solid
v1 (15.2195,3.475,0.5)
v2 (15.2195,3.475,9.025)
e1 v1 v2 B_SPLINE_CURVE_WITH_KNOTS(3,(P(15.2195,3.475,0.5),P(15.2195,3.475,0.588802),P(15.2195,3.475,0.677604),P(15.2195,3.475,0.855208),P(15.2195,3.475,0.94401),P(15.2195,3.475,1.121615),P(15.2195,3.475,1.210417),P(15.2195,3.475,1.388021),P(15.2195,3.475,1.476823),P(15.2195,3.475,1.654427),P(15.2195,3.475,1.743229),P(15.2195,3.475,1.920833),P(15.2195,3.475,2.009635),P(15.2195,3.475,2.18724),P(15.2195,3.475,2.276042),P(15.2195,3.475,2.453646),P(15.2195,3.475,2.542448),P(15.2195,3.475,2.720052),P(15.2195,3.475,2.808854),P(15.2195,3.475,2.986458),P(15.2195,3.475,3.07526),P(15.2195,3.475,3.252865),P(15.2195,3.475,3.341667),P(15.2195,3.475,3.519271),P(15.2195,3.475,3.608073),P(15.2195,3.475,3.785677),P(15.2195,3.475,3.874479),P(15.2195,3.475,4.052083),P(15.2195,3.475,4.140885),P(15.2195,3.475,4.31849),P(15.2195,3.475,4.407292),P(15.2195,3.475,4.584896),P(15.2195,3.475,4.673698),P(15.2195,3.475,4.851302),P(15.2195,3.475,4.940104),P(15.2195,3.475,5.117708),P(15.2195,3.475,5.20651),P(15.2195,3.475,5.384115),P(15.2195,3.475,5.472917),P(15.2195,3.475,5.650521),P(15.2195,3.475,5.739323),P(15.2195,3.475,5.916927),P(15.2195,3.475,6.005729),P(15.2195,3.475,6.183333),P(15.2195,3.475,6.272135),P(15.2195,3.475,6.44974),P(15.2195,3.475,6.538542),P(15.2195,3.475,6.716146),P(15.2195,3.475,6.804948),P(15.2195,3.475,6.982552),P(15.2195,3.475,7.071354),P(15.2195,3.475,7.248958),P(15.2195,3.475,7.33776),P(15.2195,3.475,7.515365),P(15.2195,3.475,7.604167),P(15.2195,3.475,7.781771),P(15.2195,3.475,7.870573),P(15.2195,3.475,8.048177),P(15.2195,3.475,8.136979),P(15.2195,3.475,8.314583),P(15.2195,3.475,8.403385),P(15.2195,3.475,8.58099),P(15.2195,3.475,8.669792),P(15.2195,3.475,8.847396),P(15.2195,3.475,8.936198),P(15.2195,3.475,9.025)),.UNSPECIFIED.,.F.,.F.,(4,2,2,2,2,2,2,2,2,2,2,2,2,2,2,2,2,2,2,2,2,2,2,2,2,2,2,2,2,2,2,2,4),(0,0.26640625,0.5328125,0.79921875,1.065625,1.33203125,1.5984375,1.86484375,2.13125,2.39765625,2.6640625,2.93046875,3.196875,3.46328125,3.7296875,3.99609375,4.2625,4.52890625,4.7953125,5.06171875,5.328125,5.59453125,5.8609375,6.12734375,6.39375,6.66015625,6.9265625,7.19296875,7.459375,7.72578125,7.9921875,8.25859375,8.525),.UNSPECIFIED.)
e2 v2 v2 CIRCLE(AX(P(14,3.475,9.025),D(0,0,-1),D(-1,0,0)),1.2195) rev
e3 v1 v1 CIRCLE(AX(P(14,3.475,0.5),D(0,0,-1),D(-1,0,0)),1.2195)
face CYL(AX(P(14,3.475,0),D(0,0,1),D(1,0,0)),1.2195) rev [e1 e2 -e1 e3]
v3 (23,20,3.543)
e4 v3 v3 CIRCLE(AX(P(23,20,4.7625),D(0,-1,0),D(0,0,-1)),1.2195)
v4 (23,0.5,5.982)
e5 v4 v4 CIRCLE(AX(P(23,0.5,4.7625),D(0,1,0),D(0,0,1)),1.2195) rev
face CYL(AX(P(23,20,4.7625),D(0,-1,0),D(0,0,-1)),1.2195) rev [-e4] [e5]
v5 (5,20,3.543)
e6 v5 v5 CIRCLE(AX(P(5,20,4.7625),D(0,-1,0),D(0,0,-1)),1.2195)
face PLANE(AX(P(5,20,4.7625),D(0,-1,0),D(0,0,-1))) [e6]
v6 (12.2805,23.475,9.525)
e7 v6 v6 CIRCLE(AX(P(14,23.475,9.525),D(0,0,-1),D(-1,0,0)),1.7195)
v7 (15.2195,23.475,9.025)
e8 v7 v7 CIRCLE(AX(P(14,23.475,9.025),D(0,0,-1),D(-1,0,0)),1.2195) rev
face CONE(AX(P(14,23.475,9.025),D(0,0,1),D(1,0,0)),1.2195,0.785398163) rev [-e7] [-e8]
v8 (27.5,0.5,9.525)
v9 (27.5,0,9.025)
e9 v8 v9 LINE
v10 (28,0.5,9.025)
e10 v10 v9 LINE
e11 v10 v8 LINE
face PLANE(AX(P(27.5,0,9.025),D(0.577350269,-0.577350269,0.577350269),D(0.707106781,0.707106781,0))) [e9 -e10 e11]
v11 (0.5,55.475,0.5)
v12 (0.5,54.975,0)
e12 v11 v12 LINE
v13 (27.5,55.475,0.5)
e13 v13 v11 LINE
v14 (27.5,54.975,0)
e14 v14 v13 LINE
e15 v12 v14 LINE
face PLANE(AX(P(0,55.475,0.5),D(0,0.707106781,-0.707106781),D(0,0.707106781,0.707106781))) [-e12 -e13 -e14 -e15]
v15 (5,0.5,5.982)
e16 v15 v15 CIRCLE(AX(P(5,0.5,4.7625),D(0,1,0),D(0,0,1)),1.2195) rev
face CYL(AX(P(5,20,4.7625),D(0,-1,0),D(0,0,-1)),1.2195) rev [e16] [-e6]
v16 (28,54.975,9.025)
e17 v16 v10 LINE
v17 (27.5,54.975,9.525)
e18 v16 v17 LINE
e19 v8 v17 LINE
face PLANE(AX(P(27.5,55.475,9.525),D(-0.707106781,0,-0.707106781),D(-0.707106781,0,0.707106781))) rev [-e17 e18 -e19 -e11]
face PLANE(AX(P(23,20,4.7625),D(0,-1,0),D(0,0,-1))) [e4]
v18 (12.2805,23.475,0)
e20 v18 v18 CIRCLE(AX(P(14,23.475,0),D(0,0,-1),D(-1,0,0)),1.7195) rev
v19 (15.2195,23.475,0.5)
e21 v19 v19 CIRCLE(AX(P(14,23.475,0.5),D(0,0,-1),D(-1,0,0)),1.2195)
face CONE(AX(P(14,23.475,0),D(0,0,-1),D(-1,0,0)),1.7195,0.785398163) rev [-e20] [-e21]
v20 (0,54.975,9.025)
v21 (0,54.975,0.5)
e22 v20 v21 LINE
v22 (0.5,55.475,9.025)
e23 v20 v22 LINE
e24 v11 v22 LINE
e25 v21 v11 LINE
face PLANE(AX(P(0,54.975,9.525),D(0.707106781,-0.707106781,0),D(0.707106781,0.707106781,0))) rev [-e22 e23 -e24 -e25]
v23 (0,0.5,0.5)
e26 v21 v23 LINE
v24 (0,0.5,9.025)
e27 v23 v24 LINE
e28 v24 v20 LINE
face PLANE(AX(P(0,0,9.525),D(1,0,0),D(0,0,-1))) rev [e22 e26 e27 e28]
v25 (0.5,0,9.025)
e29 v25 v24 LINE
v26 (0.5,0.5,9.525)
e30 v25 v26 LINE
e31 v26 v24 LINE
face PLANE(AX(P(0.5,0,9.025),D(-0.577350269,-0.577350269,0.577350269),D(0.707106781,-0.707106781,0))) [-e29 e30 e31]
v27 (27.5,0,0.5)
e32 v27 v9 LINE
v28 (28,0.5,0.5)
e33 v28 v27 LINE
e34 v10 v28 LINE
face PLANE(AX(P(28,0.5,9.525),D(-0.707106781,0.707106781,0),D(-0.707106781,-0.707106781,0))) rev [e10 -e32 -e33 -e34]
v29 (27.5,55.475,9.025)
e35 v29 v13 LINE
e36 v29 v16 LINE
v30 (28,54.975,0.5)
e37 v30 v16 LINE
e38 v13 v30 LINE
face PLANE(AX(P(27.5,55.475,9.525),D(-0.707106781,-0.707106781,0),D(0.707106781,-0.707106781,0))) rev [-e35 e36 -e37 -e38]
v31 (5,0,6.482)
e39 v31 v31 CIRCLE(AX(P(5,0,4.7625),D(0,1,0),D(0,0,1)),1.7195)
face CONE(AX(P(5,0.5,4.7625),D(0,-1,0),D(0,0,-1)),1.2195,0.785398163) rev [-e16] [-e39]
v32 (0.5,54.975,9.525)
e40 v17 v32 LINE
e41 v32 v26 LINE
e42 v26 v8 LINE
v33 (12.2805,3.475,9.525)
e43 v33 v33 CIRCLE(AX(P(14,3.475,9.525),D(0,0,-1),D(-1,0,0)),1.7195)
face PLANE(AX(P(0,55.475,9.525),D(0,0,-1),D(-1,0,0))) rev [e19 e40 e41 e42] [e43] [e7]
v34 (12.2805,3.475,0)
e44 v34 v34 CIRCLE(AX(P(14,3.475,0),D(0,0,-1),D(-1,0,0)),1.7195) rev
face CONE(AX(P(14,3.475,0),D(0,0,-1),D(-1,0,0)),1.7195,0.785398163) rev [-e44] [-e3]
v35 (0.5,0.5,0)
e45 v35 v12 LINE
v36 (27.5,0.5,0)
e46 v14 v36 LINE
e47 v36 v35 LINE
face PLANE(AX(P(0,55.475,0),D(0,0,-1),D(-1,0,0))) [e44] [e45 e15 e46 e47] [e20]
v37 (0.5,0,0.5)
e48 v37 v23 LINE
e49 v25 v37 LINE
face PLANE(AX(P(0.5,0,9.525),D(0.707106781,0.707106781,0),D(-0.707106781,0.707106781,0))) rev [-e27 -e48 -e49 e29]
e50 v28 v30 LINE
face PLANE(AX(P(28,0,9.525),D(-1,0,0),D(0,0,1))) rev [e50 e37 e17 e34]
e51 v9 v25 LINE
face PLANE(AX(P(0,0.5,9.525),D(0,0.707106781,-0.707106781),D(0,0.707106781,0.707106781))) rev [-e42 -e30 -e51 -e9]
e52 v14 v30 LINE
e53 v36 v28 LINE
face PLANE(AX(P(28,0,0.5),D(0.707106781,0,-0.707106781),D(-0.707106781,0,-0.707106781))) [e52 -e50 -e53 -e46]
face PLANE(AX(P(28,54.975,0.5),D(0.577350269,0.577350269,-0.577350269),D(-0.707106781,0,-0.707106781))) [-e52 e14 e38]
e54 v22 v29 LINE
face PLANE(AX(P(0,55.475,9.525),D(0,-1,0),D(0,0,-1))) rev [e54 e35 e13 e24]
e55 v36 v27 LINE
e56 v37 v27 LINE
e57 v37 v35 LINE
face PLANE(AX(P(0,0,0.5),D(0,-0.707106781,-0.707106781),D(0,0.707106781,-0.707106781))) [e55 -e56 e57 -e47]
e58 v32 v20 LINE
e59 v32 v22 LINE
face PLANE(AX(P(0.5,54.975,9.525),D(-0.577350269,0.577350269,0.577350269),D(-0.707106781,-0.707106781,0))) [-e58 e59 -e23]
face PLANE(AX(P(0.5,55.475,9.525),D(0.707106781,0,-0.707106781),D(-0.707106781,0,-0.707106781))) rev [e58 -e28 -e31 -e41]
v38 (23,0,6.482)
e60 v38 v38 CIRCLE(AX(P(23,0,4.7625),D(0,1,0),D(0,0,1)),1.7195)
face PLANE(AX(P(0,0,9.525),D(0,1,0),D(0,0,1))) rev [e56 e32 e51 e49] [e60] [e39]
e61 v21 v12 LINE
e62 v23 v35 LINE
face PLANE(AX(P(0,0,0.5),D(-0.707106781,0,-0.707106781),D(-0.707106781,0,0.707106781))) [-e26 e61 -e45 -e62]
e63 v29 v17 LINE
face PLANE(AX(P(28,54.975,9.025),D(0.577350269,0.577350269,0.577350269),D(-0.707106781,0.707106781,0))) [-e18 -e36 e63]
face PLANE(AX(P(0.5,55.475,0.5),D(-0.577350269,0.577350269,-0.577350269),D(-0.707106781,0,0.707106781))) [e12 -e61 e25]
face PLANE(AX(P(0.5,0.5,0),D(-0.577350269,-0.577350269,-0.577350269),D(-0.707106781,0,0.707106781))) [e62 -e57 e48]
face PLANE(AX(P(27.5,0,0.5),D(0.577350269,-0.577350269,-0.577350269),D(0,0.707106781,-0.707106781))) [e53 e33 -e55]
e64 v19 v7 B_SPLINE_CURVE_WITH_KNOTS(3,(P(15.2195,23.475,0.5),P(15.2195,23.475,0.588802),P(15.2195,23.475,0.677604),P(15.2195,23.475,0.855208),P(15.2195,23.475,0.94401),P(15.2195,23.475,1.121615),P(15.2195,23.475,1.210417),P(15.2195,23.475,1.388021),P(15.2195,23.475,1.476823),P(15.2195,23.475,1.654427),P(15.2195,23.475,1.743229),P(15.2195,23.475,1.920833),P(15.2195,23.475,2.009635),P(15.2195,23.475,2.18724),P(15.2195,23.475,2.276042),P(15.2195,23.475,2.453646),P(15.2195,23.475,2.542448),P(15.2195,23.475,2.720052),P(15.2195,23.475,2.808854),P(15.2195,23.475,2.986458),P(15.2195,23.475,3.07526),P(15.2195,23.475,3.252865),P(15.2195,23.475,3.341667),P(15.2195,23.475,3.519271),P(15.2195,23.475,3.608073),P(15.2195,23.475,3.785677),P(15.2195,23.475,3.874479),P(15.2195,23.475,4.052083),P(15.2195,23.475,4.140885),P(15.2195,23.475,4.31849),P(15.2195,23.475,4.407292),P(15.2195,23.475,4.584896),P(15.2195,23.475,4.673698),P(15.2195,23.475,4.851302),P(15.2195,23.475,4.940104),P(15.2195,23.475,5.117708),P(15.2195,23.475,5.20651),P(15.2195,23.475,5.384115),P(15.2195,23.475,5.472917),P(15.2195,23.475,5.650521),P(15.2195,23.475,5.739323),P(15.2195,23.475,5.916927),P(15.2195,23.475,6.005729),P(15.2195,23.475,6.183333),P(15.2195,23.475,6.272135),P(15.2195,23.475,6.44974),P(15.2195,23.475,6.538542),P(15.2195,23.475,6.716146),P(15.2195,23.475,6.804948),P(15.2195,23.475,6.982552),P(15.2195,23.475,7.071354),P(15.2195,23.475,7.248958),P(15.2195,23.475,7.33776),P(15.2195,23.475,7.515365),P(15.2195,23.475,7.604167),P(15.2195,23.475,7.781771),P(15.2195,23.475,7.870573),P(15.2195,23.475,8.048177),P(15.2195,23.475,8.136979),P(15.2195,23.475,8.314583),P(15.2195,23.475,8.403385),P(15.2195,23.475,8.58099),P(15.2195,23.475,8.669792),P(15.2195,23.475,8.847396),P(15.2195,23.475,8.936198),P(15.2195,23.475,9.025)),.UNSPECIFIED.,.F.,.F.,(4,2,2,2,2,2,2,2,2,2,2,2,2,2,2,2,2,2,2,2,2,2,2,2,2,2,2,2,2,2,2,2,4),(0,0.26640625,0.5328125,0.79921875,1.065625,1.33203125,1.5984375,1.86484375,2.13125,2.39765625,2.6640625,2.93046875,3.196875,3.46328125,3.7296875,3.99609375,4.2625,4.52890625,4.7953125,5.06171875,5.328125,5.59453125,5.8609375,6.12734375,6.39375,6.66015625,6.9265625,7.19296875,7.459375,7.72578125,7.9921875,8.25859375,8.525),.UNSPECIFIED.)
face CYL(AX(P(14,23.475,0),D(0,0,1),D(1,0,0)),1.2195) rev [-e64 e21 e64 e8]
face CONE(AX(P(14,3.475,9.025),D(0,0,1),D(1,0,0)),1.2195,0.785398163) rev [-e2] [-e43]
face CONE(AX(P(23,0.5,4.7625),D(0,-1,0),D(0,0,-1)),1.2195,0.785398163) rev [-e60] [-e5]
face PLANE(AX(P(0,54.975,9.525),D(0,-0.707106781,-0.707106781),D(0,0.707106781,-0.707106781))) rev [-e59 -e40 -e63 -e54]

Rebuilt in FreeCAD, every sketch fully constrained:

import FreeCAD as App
import Part
import Sketcher
from FreeCAD import Vector
Q = App.Units.Quantity


def edges_at(feature, points):
    """Names of the edges that pass closest to the given points."""
    edges = feature.Shape.Edges
    near = lambda p: min(range(len(edges)), key=lambda i: edges[i].distToShape(Part.Vertex(*p))[0])
    return sorted({f"Edge{near(p) + 1}" for p in points})

doc = App.newDocument("Part")
params = doc.addObject("Spreadsheet::Sheet", "Params")
for row, (alias, value) in enumerate([
    ("sketch1_width", "28 mm"),
    ("pad1_length", "9.525 mm"),
    ("pocket1_length", "20 mm"),
    ("chamfer_size", "0.5 mm"),
    ("chamfer2_size", "0.5 mm"),
], start=1):
    params.set(f"A{row}", alias)
    params.set(f"B{row}", "=" + value)
    params.setAlias(f"B{row}", alias)

body = doc.addObject("PartDesign::Body", "Body")

# Sketch on XY plane
sketch1 = body.newObject("Sketcher::SketchObject", "Sketch")
sketch1.AttachmentSupport = (doc.getObject("XY_Plane"), [""])
sketch1.MapMode = "FlatFace"
sketch1.addGeometry([
    Part.LineSegment(Vector(0, 55, 0), Vector(0, 0, 0)),
    Part.LineSegment(Vector(0, 0, 0), Vector(28, 0, 0)),
    Part.LineSegment(Vector(28, 0, 0), Vector(28, 55, 0)),
    Part.LineSegment(Vector(28, 55, 0), Vector(0, 55, 0)),
], False)
sketch1.addConstraint([
    Sketcher.Constraint("Coincident", 0, 2, 1, 1),
    Sketcher.Constraint("Coincident", 1, 2, 2, 1),
    Sketcher.Constraint("Coincident", 2, 2, 3, 1),
    Sketcher.Constraint("Coincident", 3, 2, 0, 1),
    Sketcher.Constraint("Vertical", 0),
    Sketcher.Constraint("Horizontal", 1),
    Sketcher.Constraint("Vertical", 2),
    Sketcher.Constraint("Horizontal", 3),
    Sketcher.Constraint("Coincident", 0, 2, -1, 1),
    Sketcher.Constraint("DistanceX", 1, 1, 1, 2, Q("28 mm")),
    Sketcher.Constraint("DistanceY", 0, 2, 0, 1, Q("55.475 mm")),
])
sketch1.setExpression("Constraints[9]", "Params.sketch1_width")
pad1 = body.newObject("PartDesign::Pad", "Pad")
pad1.Profile = sketch1
pad1.setExpression("Length", "Params.pad1_length")

# Sketch on XZ plane
sketch2 = body.newObject("Sketcher::SketchObject", "Sketch001")
sketch2.AttachmentSupport = (doc.getObject("XZ_Plane"), [""])
sketch2.MapMode = "FlatFace"
sketch2.addGeometry([
    Part.Circle(Vector(5, 4.8, 0), Vector(0, 0, 1), 1.2),
    Part.Circle(Vector(23, 4.8, 0), Vector(0, 0, 1), 1.2),
], False)
sketch2.addConstraint([
    Sketcher.Constraint("Equal", 0, 1),
    Sketcher.Constraint("Horizontal", 0, 3, 1, 3),
    Sketcher.Constraint("Diameter", 0, Q("2.439 mm")),
    Sketcher.Constraint("DistanceX", -1, 1, 0, 3, Q("5 mm")),
    Sketcher.Constraint("DistanceX", -1, 1, 1, 3, Q("23 mm")),
    Sketcher.Constraint("DistanceY", -1, 1, 0, 3, Q("4.7625 mm")),
])
pocket1 = body.newObject("PartDesign::Pocket", "Pocket")
pocket1.Profile = sketch2
pocket1.setExpression("Length", "Params.pocket1_length")

# Sketch on XY plane
sketch3 = body.newObject("Sketcher::SketchObject", "Sketch002")
sketch3.AttachmentSupport = (doc.getObject("XY_Plane"), [""])
sketch3.MapMode = "FlatFace"
sketch3.AttachmentOffset = App.Placement(Vector(0, 0, 9.525), App.Rotation())
sketch3.addGeometry([
    Part.Circle(Vector(14, 23.5, 0), Vector(0, 0, 1), 1.2),
    Part.Circle(Vector(14, 3.5, 0), Vector(0, 0, 1), 1.2),
], False)
sketch3.addConstraint([
    Sketcher.Constraint("Equal", 0, 1),
    Sketcher.Constraint("Vertical", 0, 3, 1, 3),
    Sketcher.Constraint("Diameter", 0, Q("2.439 mm")),
    Sketcher.Constraint("DistanceX", -1, 1, 0, 3, Q("14 mm")),
    Sketcher.Constraint("DistanceY", 1, 3, 0, 3, Q("20 mm")),
    Sketcher.Constraint("DistanceY", -1, 1, 0, 3, Q("23.475 mm")),
])
pocket2 = body.newObject("PartDesign::Pocket", "Pocket001")
pocket2.Profile = sketch3
pocket2.Type = "ThroughAll"
doc.recompute()

chamfer = body.newObject("PartDesign::Chamfer", "Chamfer")
chamfer.Base = (pocket2, edges_at(pocket2, [
    (28, 27.738, 9.525),
    (14, 55.475, 9.525),
    (0, 27.738, 9.525),
    (14, 55.475, 0),
    (28, 27.738, 0),
    (14, 0, 0),
    (0, 27.738, 0),
    (14, 0, 9.525),
    (0, 55.475, 4.763),
    (28, 55.475, 4.763),
    (28, 0, 4.763),
    (0, 0, 4.763),
]))
chamfer.setExpression("Size", "Params.chamfer_size")
doc.recompute()

chamfer2 = body.newObject("PartDesign::Chamfer", "Chamfer001")
chamfer2.Base = (chamfer, edges_at(chamfer, [
    (5, 0, 5.982),
    (23, 0, 5.982),
    (12.78, 23.475, 0),
    (12.78, 23.475, 9.525),
    (12.78, 3.475, 0),
    (12.78, 3.475, 9.525),
]))
chamfer2.setExpression("Size", "Params.chamfer2_size")

doc.recompute()
